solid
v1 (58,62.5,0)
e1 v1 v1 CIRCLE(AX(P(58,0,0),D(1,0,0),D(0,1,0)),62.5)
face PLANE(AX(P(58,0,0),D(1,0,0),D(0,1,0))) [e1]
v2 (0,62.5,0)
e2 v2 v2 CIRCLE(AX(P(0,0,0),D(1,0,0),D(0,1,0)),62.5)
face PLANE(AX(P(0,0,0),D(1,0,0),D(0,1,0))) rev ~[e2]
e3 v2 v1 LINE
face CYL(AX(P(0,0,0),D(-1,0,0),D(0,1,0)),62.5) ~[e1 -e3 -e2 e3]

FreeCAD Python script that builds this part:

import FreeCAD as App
import Part
import Sketcher
from FreeCAD import Vector
Q = App.Units.Quantity

doc = App.newDocument("Part")
params = doc.addObject("Spreadsheet::Sheet", "Params")
for row, (alias, value) in enumerate([
    ("sketch1_diameter", "125 mm"),
    ("pad1_length", "58 mm"),
], start=1):
    params.set(f"A{row}", alias)
    params.set(f"B{row}", "=" + value)
    params.setAlias(f"B{row}", alias)

body = doc.addObject("PartDesign::Body", "Body")

# Sketch on YZ plane
sketch1 = body.newObject("Sketcher::SketchObject", "Sketch")
sketch1.AttachmentSupport = (doc.getObject("YZ_Plane"), [""])
sketch1.MapMode = "FlatFace"
sketch1.addGeometry(Part.Circle(Vector(0, 0, 0), Vector(0, 0, 1), 62.5), False)
sketch1.addConstraint([
    Sketcher.Constraint("Coincident", 0, 3, -1, 1),
    Sketcher.Constraint("Diameter", 0, Q("125 mm")),
])
sketch1.setExpression("Constraints[1]", "Params.sketch1_diameter")
pad1 = body.newObject("PartDesign::Pad", "Pad")
pad1.Profile = sketch1
pad1.setExpression("Length", "Params.pad1_length")

doc.recompute()
